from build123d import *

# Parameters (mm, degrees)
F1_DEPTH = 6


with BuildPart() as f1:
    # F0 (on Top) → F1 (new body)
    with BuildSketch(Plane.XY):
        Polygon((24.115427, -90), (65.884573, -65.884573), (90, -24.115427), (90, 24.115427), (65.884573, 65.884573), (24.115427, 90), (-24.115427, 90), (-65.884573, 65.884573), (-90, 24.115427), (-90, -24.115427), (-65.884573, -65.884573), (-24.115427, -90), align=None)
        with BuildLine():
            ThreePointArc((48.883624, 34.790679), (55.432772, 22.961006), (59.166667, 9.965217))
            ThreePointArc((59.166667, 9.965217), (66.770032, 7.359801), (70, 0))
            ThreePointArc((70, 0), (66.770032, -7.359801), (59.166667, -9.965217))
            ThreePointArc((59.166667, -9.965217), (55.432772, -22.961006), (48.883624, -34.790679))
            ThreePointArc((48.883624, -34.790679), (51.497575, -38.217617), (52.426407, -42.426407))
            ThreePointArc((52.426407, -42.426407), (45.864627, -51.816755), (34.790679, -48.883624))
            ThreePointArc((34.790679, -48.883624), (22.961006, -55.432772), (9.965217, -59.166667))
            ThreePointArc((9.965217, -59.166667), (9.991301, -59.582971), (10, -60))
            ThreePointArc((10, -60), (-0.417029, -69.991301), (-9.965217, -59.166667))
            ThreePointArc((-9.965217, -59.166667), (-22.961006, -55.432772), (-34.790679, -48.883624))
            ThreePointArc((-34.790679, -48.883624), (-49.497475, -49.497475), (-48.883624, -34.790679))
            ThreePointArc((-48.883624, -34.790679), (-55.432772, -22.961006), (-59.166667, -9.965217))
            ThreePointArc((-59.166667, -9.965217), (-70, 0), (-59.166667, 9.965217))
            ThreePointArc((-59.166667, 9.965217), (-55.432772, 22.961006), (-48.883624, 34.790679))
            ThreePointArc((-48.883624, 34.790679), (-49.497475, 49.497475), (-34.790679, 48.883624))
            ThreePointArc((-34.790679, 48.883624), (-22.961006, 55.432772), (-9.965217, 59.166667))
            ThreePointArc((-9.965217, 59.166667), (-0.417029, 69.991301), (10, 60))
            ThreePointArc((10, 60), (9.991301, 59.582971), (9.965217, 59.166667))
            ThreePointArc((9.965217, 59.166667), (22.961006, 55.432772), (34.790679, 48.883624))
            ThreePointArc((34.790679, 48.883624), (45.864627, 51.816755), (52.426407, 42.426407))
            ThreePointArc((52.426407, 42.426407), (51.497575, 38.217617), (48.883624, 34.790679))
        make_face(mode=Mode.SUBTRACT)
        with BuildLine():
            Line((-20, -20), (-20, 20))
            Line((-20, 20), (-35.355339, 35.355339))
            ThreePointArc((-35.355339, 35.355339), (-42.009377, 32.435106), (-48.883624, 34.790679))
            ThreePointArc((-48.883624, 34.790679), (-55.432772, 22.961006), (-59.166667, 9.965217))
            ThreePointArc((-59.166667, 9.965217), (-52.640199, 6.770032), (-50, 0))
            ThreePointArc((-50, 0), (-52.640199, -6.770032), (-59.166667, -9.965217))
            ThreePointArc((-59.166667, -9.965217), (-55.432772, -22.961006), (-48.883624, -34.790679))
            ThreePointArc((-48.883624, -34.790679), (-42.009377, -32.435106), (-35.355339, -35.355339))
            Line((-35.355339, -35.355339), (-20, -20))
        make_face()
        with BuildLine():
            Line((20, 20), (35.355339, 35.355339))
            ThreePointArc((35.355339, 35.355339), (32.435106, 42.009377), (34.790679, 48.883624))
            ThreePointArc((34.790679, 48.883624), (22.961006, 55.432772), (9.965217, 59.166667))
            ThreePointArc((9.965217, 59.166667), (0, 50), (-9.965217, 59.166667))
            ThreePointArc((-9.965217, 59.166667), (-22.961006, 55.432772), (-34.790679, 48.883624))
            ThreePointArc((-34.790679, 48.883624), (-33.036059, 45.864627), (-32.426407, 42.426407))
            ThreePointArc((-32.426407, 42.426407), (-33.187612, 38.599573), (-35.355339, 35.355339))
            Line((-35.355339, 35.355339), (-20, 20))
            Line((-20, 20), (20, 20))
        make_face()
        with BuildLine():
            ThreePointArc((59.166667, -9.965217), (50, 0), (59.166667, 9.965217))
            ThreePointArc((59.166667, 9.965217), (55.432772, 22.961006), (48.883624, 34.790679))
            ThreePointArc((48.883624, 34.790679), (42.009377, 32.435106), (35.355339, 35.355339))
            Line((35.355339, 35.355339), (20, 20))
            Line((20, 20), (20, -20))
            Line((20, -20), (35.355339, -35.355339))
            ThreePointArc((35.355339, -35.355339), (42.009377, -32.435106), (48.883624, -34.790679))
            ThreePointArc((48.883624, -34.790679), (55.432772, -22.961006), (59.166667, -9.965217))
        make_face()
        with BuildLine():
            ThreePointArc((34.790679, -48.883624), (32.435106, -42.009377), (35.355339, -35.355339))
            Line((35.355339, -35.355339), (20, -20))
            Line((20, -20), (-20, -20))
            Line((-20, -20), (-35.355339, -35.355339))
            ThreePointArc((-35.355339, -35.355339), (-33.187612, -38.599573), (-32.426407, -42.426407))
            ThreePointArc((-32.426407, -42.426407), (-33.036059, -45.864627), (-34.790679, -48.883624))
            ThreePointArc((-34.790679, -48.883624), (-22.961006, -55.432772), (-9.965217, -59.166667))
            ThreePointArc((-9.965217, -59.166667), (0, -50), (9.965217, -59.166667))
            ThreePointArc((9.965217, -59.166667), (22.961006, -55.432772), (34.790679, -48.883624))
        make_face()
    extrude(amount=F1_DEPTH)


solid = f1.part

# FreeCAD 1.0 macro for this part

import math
import FreeCAD as App
import Part
import Sketcher
Q = App.Units.Quantity


def add_polygon(sketch, points):
    """Adds a closed chain of lines whose ends are joined by coincident constraints."""
    first, n = sketch.GeometryCount, len(points)
    for a, b in zip(points, points[1:] + points[:1]):
        sketch.addGeometry(Part.LineSegment(App.Vector(*a, 0), App.Vector(*b, 0)), False)
    for i in range(n):
        sketch.addConstraint(Sketcher.Constraint("Coincident", first + i, 2, first + (i + 1) % n, 1))

doc = App.newDocument("Part")
body = doc.addObject("PartDesign::Body", "Body")

# Sketch on XY plane
sketch1 = doc.addObject("Sketcher::SketchObject", "Sketch")
body.addObject(sketch1)
sketch1.AttachmentSupport = (doc.XY_Plane, [""])
sketch1.MapMode = "FlatFace"
add_polygon(sketch1, [(24.1, -90), (65.9, -65.9), (90, -24.1), (90, 24.1), (65.9, 65.9), (24.1, 90), (-24.1, 90), (-65.9, 65.9), (-90, 24.1), (-90, -24.1), (-65.9, -65.9), (-24.1, -90)])  # lines 0-11
sketch1.addGeometry(Part.ArcOfCircle(Part.Circle(App.Vector(42.4, 42.4, 0), App.Vector(0, 0, 1), 10), math.radians(-50), math.radians(0)), False)  # 12
sketch1.addGeometry(Part.ArcOfCircle(Part.Circle(App.Vector(42.4, 42.4, 0), App.Vector(0, 0, 1), 10), math.radians(-135), math.radians(-50)), False)  # 13
sketch1.addGeometry(Part.ArcOfCircle(Part.Circle(App.Vector(42.4, 42.4, 0), App.Vector(0, 0, 1), 10), math.radians(140), math.radians(225)), False)  # 14
sketch1.addGeometry(Part.ArcOfCircle(Part.Circle(App.Vector(42.4, 42.4, 0), App.Vector(0, 0, 1), 10), math.radians(0), math.radians(140)), False)  # 15
sketch1.addGeometry(Part.ArcOfCircle(Part.Circle(App.Vector(60, 0, 0), App.Vector(0, 0, 1), 10), math.radians(0), math.radians(95)), False)  # 16
sketch1.addGeometry(Part.ArcOfCircle(Part.Circle(App.Vector(60, 0, 0), App.Vector(0, 0, 1), 10), math.radians(-95), math.radians(0)), False)  # 17
sketch1.addGeometry(Part.ArcOfCircle(Part.Circle(App.Vector(60, 0, 0), App.Vector(0, 0, 1), 10), math.radians(95), math.radians(265)), False)  # 18
sketch1.addGeometry(Part.ArcOfCircle(Part.Circle(App.Vector(42.4, -42.4, 0), App.Vector(0, 0, 1), 10), math.radians(0), math.radians(50)), False)  # 19
sketch1.addGeometry(Part.ArcOfCircle(Part.Circle(App.Vector(42.4, -42.4, 0), App.Vector(0, 0, 1), 10), math.radians(-140), math.radians(0)), False)  # 20
sketch1.addGeometry(Part.ArcOfCircle(Part.Circle(App.Vector(42.4, -42.4, 0), App.Vector(0, 0, 1), 10), math.radians(135), math.radians(220)), False)  # 21
sketch1.addGeometry(Part.ArcOfCircle(Part.Circle(App.Vector(42.4, -42.4, 0), App.Vector(0, 0, 1), 10), math.radians(50), math.radians(135)), False)  # 22
sketch1.addGeometry(Part.ArcOfCircle(Part.Circle(App.Vector(0, -60, 0), App.Vector(0, 0, 1), 10), math.radians(0), math.radians(4.78)), False)  # 23
sketch1.addGeometry(Part.ArcOfCircle(Part.Circle(App.Vector(0, -60, 0), App.Vector(0, 0, 1), 10), math.radians(175), math.radians(360)), False)  # 24
sketch1.addGeometry(Part.ArcOfCircle(Part.Circle(App.Vector(0, -60, 0), App.Vector(0, 0, 1), 10), math.radians(5), math.radians(175)), False)  # 25
sketch1.addGeometry(Part.ArcOfCircle(Part.Circle(App.Vector(-42.4, -42.4, 0), App.Vector(0, 0, 1), 10), math.radians(130), math.radians(320)), False)  # 26
sketch1.addGeometry(Part.ArcOfCircle(Part.Circle(App.Vector(-42.4, -42.4, 0), App.Vector(0, 0, 1), 10), math.radians(45), math.radians(130)), False)  # 27
sketch1.addGeometry(Part.ArcOfCircle(Part.Circle(App.Vector(-42.4, -42.4, 0), App.Vector(0, 0, 1), 10), math.radians(0), math.radians(45)), False)  # 28
sketch1.addGeometry(Part.ArcOfCircle(Part.Circle(App.Vector(-42.4, -42.4, 0), App.Vector(0, 0, 1), 10), math.radians(-40), math.radians(0)), False)  # 29
add_polygon(sketch1, [(-20, -20), (-20, 20), (20, 20), (20, -20)])  # lines 30-33
sketch1.addGeometry(Part.ArcOfCircle(Part.Circle(App.Vector(-42.4, 42.4, 0), App.Vector(0, 0, 1), 10), math.radians(-130), math.radians(-45)), False)  # 34
sketch1.addGeometry(Part.ArcOfCircle(Part.Circle(App.Vector(-42.4, 42.4, 0), App.Vector(0, 0, 1), 10), math.radians(40), math.radians(230)), False)  # 35
sketch1.addGeometry(Part.ArcOfCircle(Part.Circle(App.Vector(-42.4, 42.4, 0), App.Vector(0, 0, 1), 10), math.radians(0), math.radians(40)), False)  # 36
sketch1.addGeometry(Part.ArcOfCircle(Part.Circle(App.Vector(-42.4, 42.4, 0), App.Vector(0, 0, 1), 10), math.radians(-45), math.radians(0)), False)  # 37
sketch1.addGeometry(Part.ArcOfCircle(Part.Circle(App.Vector(0, 60, 0), App.Vector(0, 0, 1), 10), math.radians(0), math.radians(185)), False)  # 38
sketch1.addGeometry(Part.ArcOfCircle(Part.Circle(App.Vector(0, 60, 0), App.Vector(0, 0, 1), 10), math.radians(-4.78), math.radians(0)), False)  # 39
sketch1.addGeometry(Part.ArcOfCircle(Part.Circle(App.Vector(0, 60, 0), App.Vector(0, 0, 1), 10), math.radians(-175), math.radians(-5)), False)  # 40
sketch1.addGeometry(Part.ArcOfCircle(Part.Circle(App.Vector(-60, 0, 0), App.Vector(0, 0, 1), 10), math.radians(85), math.radians(275)), False)  # 41
sketch1.addGeometry(Part.ArcOfCircle(Part.Circle(App.Vector(-60, 0, 0), App.Vector(0, 0, 1), 10), math.radians(0), math.radians(85)), False)  # 42
sketch1.addGeometry(Part.ArcOfCircle(Part.Circle(App.Vector(-60, 0, 0), App.Vector(0, 0, 1), 10), math.radians(-85), math.radians(0)), False)  # 43
sketch1.addConstraint(Sketcher.Constraint("Tangent", 12, 1, 13, 2))
sketch1.addConstraint(Sketcher.Constraint("Tangent", 13, 1, 14, 2))
sketch1.addConstraint(Sketcher.Constraint("Tangent", 14, 1, 15, 2))
sketch1.addConstraint(Sketcher.Constraint("Tangent", 15, 1, 12, 2))
sketch1.addConstraint(Sketcher.Constraint("Tangent", 16, 1, 17, 2))
sketch1.addConstraint(Sketcher.Constraint("Tangent", 17, 1, 18, 2))
sketch1.addConstraint(Sketcher.Constraint("Tangent", 18, 1, 16, 2))
sketch1.addConstraint(Sketcher.Constraint("Tangent", 19, 1, 20, 2))
sketch1.addConstraint(Sketcher.Constraint("Tangent", 20, 1, 21, 2))
sketch1.addConstraint(Sketcher.Constraint("Tangent", 21, 1, 22, 2))
sketch1.addConstraint(Sketcher.Constraint("Tangent", 22, 1, 19, 2))
sketch1.addConstraint(Sketcher.Constraint("Coincident", 23, 1, 24, 2))
sketch1.addConstraint(Sketcher.Constraint("Tangent", 24, 1, 25, 2))
sketch1.addConstraint(Sketcher.Constraint("Coincident", 25, 1, 23, 2))
sketch1.addConstraint(Sketcher.Constraint("Tangent", 26, 1, 27, 2))
sketch1.addConstraint(Sketcher.Constraint("Tangent", 27, 1, 28, 2))
sketch1.addConstraint(Sketcher.Constraint("Tangent", 28, 1, 29, 2))
sketch1.addConstraint(Sketcher.Constraint("Tangent", 29, 1, 26, 2))
sketch1.addConstraint(Sketcher.Constraint("Tangent", 34, 1, 35, 2))
sketch1.addConstraint(Sketcher.Constraint("Tangent", 35, 1, 36, 2))
sketch1.addConstraint(Sketcher.Constraint("Tangent", 36, 1, 37, 2))
sketch1.addConstraint(Sketcher.Constraint("Tangent", 37, 1, 34, 2))
sketch1.addConstraint(Sketcher.Constraint("Coincident", 38, 1, 39, 2))
sketch1.addConstraint(Sketcher.Constraint("Coincident", 39, 1, 40, 2))
sketch1.addConstraint(Sketcher.Constraint("Tangent", 40, 1, 38, 2))
sketch1.addConstraint(Sketcher.Constraint("Tangent", 41, 1, 42, 2))
sketch1.addConstraint(Sketcher.Constraint("Tangent", 42, 1, 43, 2))
sketch1.addConstraint(Sketcher.Constraint("Tangent", 43, 1, 41, 2))
sketch1.addConstraint(Sketcher.Constraint("Vertical", 2))
sketch1.addConstraint(Sketcher.Constraint("Horizontal", 5))
sketch1.addConstraint(Sketcher.Constraint("Vertical", 8))
sketch1.addConstraint(Sketcher.Constraint("Horizontal", 11))
sketch1.addConstraint(Sketcher.Constraint("Vertical", 30))
sketch1.addConstraint(Sketcher.Constraint("Horizontal", 31))
sketch1.addConstraint(Sketcher.Constraint("Vertical", 32))
sketch1.addConstraint(Sketcher.Constraint("Horizontal", 33))
sketch1.addConstraint(Sketcher.Constraint("Equal", 12, 13))
sketch1.addConstraint(Sketcher.Constraint("Equal", 15, 16))
sketch1.addConstraint(Sketcher.Constraint("Equal", 17, 19))
sketch1.addConstraint(Sketcher.Constraint("Equal", 18, 20))
sketch1.addConstraint(Sketcher.Constraint("Equal", 22, 24))
sketch1.addConstraint(Sketcher.Constraint("Equal", 24, 25))
sketch1.addConstraint(Sketcher.Constraint("Equal", 25, 26))
sketch1.addConstraint(Sketcher.Constraint("Equal", 26, 27))
sketch1.addConstraint(Sketcher.Constraint("Equal", 27, 34))
sketch1.addConstraint(Sketcher.Constraint("Equal", 34, 35))
sketch1.addConstraint(Sketcher.Constraint("Equal", 35, 38))
sketch1.addConstraint(Sketcher.Constraint("Equal", 23, 39))
sketch1.addConstraint(Sketcher.Constraint("Equal", 38, 40))
sketch1.addConstraint(Sketcher.Constraint("Equal", 40, 41))
sketch1.addConstraint(Sketcher.Constraint("Symmetric", 12, 3, 26, 3, -1, 1))
sketch1.addConstraint(Sketcher.Constraint("Symmetric", 19, 3, 34, 3, -1, 1))
sketch1.addConstraint(Sketcher.Constraint("Symmetric", 24, 3, 38, 3, -1, 1))
sketch1.addConstraint(Sketcher.Constraint("Symmetric", 16, 3, 41, 3, -1, 1))
sketch1.addConstraint(Sketcher.Constraint("Symmetric", 0, 2, 6, 2, -1, 1))
sketch1.addConstraint(Sketcher.Constraint("Symmetric", 1, 2, 7, 2, -1, 1))
sketch1.addConstraint(Sketcher.Constraint("Symmetric", 3, 2, 9, 2, -1, 1))
sketch1.addConstraint(Sketcher.Constraint("Symmetric", 4, 2, 10, 2, -1, 1))
sketch1.addConstraint(Sketcher.Constraint("Symmetric", 30, 2, 32, 2, -1, 1))
sketch1.addConstraint(Sketcher.Constraint("Symmetric", 19, 3, 26, 3, -2))
sketch1.addConstraint(Sketcher.Constraint("Symmetric", 3, 2, 6, 2, -2))
sketch1.addConstraint(Sketcher.Constraint("Symmetric", 24, 1, 25, 1, -2))
sketch1.addConstraint(Sketcher.Constraint("Symmetric", 18, 1, 41, 1, -2))
sketch1.addConstraint(Sketcher.Constraint("PointOnObject", 16, 1, -1))
sketch1.addConstraint(Sketcher.Constraint("PointOnObject", 42, 1, -1))
sketch1.addConstraint(Sketcher.Constraint("Perpendicular", 0, 3))
sketch1.addConstraint(Sketcher.Constraint("Perpendicular", 1, 4))
sketch1.addConstraint(Sketcher.Constraint("Perpendicular", 3, 6))
sketch1.addConstraint(Sketcher.Constraint("Perpendicular", 6, 9))
sketch1.addConstraint(Sketcher.Constraint("Horizontal", 2, 2, 7, 2))
sketch1.addConstraint(Sketcher.Constraint("Horizontal", 36, 3, 15, 1))
sketch1.addConstraint(Sketcher.Constraint("Horizontal", 29, 3, 19, 1))
sketch1.addConstraint(Sketcher.Constraint("Horizontal", 25, 3, 23, 1))
sketch1.addConstraint(Sketcher.Constraint("Horizontal", 22, 1, 26, 1))
sketch1.addConstraint(Sketcher.Constraint("Horizontal", 21, 1, 27, 1))
sketch1.addConstraint(Sketcher.Constraint("Horizontal", 19, 1, 28, 1))
sketch1.addConstraint(Sketcher.Constraint("Horizontal", 20, 1, 29, 1))
sketch1.addConstraint(Sketcher.Constraint("Horizontal", 12, 1, 34, 1))
sketch1.addConstraint(Sketcher.Constraint("Horizontal", 14, 1, 35, 1))
sketch1.addConstraint(Sketcher.Constraint("Horizontal", 15, 1, 36, 1))
sketch1.addConstraint(Sketcher.Constraint("Horizontal", 13, 1, 37, 1))
sketch1.addConstraint(Sketcher.Constraint("Horizontal", 40, 3, 38, 1))
sketch1.addConstraint(Sketcher.Constraint("Horizontal", 39, 1, 40, 1))
sketch1.addConstraint(Sketcher.Constraint("Horizontal", 17, 1, 43, 1))
sketch1.addConstraint(Sketcher.Constraint("Vertical", 17, 1, 18, 1))
sketch1.addConstraint(Sketcher.Constraint("Vertical", 14, 1, 20, 1))
sketch1.addConstraint(Sketcher.Constraint("Vertical", 13, 1, 21, 1))
sketch1.addConstraint(Sketcher.Constraint("Vertical", 12, 1, 22, 1))
sketch1.addConstraint(Sketcher.Constraint("Vertical", 25, 1, 39, 1))
sketch1.addConstraint(Sketcher.Constraint("Equal", 11, 2))
sketch1.addConstraint(Sketcher.Constraint("Equal", 33, 30))
sketch1.addConstraint(Sketcher.Constraint("Equal", 0, 1))
sketch1.addConstraint(Sketcher.Constraint("Radius", 13, 9.999999))
sketch1.addConstraint(Sketcher.Constraint("DistanceX", 31, 1, 31, 2, 40.0))
sketch1.addConstraint(Sketcher.Constraint("Angle", 0, Q("29.999999 deg")))
sketch1.addConstraint(Sketcher.Constraint("DistanceX", -1, 1, 16, 3, 60.000001))
sketch1.addConstraint(Sketcher.Constraint("DistanceY", 24, 3, -1, 1, 60.000001))
sketch1.addConstraint(Sketcher.Constraint("DistanceX", -1, 1, 1, 2, 90.0))
sketch1.addConstraint(Sketcher.Constraint("Radius", 23, 9.999312))
sketch1.addConstraint(Sketcher.Constraint("DistanceX", 5, 2, 5, 1, 48.230854))
sketch1.addConstraint(Sketcher.Constraint("DistanceX", -1, 1, 12, 3, 42.42641))
sketch1.addConstraint(Sketcher.Constraint("DistanceY", 28, 3, -1, 1, 42.426409))
sketch1.addConstraint(Sketcher.Constraint("DistanceY", -1, 1, 12, 1, 34.790679))
sketch1.addConstraint(Sketcher.Constraint("DistanceX", -1, 1, 13, 1, 35.355339))
sketch1.addConstraint(Sketcher.Constraint("DistanceX", -1, 1, 14, 1, 34.790679))
sketch1.addConstraint(Sketcher.Constraint("DistanceX", -1, 1, 17, 1, 59.166667))
sketch1.addConstraint(Sketcher.Constraint("DistanceX", 24, 1, -1, 1, 9.965217))
pad1 = doc.addObject("PartDesign::Pad", "Pad")
body.addObject(pad1)
pad1.Profile = sketch1
pad1.Length = 6

doc.recompute()
